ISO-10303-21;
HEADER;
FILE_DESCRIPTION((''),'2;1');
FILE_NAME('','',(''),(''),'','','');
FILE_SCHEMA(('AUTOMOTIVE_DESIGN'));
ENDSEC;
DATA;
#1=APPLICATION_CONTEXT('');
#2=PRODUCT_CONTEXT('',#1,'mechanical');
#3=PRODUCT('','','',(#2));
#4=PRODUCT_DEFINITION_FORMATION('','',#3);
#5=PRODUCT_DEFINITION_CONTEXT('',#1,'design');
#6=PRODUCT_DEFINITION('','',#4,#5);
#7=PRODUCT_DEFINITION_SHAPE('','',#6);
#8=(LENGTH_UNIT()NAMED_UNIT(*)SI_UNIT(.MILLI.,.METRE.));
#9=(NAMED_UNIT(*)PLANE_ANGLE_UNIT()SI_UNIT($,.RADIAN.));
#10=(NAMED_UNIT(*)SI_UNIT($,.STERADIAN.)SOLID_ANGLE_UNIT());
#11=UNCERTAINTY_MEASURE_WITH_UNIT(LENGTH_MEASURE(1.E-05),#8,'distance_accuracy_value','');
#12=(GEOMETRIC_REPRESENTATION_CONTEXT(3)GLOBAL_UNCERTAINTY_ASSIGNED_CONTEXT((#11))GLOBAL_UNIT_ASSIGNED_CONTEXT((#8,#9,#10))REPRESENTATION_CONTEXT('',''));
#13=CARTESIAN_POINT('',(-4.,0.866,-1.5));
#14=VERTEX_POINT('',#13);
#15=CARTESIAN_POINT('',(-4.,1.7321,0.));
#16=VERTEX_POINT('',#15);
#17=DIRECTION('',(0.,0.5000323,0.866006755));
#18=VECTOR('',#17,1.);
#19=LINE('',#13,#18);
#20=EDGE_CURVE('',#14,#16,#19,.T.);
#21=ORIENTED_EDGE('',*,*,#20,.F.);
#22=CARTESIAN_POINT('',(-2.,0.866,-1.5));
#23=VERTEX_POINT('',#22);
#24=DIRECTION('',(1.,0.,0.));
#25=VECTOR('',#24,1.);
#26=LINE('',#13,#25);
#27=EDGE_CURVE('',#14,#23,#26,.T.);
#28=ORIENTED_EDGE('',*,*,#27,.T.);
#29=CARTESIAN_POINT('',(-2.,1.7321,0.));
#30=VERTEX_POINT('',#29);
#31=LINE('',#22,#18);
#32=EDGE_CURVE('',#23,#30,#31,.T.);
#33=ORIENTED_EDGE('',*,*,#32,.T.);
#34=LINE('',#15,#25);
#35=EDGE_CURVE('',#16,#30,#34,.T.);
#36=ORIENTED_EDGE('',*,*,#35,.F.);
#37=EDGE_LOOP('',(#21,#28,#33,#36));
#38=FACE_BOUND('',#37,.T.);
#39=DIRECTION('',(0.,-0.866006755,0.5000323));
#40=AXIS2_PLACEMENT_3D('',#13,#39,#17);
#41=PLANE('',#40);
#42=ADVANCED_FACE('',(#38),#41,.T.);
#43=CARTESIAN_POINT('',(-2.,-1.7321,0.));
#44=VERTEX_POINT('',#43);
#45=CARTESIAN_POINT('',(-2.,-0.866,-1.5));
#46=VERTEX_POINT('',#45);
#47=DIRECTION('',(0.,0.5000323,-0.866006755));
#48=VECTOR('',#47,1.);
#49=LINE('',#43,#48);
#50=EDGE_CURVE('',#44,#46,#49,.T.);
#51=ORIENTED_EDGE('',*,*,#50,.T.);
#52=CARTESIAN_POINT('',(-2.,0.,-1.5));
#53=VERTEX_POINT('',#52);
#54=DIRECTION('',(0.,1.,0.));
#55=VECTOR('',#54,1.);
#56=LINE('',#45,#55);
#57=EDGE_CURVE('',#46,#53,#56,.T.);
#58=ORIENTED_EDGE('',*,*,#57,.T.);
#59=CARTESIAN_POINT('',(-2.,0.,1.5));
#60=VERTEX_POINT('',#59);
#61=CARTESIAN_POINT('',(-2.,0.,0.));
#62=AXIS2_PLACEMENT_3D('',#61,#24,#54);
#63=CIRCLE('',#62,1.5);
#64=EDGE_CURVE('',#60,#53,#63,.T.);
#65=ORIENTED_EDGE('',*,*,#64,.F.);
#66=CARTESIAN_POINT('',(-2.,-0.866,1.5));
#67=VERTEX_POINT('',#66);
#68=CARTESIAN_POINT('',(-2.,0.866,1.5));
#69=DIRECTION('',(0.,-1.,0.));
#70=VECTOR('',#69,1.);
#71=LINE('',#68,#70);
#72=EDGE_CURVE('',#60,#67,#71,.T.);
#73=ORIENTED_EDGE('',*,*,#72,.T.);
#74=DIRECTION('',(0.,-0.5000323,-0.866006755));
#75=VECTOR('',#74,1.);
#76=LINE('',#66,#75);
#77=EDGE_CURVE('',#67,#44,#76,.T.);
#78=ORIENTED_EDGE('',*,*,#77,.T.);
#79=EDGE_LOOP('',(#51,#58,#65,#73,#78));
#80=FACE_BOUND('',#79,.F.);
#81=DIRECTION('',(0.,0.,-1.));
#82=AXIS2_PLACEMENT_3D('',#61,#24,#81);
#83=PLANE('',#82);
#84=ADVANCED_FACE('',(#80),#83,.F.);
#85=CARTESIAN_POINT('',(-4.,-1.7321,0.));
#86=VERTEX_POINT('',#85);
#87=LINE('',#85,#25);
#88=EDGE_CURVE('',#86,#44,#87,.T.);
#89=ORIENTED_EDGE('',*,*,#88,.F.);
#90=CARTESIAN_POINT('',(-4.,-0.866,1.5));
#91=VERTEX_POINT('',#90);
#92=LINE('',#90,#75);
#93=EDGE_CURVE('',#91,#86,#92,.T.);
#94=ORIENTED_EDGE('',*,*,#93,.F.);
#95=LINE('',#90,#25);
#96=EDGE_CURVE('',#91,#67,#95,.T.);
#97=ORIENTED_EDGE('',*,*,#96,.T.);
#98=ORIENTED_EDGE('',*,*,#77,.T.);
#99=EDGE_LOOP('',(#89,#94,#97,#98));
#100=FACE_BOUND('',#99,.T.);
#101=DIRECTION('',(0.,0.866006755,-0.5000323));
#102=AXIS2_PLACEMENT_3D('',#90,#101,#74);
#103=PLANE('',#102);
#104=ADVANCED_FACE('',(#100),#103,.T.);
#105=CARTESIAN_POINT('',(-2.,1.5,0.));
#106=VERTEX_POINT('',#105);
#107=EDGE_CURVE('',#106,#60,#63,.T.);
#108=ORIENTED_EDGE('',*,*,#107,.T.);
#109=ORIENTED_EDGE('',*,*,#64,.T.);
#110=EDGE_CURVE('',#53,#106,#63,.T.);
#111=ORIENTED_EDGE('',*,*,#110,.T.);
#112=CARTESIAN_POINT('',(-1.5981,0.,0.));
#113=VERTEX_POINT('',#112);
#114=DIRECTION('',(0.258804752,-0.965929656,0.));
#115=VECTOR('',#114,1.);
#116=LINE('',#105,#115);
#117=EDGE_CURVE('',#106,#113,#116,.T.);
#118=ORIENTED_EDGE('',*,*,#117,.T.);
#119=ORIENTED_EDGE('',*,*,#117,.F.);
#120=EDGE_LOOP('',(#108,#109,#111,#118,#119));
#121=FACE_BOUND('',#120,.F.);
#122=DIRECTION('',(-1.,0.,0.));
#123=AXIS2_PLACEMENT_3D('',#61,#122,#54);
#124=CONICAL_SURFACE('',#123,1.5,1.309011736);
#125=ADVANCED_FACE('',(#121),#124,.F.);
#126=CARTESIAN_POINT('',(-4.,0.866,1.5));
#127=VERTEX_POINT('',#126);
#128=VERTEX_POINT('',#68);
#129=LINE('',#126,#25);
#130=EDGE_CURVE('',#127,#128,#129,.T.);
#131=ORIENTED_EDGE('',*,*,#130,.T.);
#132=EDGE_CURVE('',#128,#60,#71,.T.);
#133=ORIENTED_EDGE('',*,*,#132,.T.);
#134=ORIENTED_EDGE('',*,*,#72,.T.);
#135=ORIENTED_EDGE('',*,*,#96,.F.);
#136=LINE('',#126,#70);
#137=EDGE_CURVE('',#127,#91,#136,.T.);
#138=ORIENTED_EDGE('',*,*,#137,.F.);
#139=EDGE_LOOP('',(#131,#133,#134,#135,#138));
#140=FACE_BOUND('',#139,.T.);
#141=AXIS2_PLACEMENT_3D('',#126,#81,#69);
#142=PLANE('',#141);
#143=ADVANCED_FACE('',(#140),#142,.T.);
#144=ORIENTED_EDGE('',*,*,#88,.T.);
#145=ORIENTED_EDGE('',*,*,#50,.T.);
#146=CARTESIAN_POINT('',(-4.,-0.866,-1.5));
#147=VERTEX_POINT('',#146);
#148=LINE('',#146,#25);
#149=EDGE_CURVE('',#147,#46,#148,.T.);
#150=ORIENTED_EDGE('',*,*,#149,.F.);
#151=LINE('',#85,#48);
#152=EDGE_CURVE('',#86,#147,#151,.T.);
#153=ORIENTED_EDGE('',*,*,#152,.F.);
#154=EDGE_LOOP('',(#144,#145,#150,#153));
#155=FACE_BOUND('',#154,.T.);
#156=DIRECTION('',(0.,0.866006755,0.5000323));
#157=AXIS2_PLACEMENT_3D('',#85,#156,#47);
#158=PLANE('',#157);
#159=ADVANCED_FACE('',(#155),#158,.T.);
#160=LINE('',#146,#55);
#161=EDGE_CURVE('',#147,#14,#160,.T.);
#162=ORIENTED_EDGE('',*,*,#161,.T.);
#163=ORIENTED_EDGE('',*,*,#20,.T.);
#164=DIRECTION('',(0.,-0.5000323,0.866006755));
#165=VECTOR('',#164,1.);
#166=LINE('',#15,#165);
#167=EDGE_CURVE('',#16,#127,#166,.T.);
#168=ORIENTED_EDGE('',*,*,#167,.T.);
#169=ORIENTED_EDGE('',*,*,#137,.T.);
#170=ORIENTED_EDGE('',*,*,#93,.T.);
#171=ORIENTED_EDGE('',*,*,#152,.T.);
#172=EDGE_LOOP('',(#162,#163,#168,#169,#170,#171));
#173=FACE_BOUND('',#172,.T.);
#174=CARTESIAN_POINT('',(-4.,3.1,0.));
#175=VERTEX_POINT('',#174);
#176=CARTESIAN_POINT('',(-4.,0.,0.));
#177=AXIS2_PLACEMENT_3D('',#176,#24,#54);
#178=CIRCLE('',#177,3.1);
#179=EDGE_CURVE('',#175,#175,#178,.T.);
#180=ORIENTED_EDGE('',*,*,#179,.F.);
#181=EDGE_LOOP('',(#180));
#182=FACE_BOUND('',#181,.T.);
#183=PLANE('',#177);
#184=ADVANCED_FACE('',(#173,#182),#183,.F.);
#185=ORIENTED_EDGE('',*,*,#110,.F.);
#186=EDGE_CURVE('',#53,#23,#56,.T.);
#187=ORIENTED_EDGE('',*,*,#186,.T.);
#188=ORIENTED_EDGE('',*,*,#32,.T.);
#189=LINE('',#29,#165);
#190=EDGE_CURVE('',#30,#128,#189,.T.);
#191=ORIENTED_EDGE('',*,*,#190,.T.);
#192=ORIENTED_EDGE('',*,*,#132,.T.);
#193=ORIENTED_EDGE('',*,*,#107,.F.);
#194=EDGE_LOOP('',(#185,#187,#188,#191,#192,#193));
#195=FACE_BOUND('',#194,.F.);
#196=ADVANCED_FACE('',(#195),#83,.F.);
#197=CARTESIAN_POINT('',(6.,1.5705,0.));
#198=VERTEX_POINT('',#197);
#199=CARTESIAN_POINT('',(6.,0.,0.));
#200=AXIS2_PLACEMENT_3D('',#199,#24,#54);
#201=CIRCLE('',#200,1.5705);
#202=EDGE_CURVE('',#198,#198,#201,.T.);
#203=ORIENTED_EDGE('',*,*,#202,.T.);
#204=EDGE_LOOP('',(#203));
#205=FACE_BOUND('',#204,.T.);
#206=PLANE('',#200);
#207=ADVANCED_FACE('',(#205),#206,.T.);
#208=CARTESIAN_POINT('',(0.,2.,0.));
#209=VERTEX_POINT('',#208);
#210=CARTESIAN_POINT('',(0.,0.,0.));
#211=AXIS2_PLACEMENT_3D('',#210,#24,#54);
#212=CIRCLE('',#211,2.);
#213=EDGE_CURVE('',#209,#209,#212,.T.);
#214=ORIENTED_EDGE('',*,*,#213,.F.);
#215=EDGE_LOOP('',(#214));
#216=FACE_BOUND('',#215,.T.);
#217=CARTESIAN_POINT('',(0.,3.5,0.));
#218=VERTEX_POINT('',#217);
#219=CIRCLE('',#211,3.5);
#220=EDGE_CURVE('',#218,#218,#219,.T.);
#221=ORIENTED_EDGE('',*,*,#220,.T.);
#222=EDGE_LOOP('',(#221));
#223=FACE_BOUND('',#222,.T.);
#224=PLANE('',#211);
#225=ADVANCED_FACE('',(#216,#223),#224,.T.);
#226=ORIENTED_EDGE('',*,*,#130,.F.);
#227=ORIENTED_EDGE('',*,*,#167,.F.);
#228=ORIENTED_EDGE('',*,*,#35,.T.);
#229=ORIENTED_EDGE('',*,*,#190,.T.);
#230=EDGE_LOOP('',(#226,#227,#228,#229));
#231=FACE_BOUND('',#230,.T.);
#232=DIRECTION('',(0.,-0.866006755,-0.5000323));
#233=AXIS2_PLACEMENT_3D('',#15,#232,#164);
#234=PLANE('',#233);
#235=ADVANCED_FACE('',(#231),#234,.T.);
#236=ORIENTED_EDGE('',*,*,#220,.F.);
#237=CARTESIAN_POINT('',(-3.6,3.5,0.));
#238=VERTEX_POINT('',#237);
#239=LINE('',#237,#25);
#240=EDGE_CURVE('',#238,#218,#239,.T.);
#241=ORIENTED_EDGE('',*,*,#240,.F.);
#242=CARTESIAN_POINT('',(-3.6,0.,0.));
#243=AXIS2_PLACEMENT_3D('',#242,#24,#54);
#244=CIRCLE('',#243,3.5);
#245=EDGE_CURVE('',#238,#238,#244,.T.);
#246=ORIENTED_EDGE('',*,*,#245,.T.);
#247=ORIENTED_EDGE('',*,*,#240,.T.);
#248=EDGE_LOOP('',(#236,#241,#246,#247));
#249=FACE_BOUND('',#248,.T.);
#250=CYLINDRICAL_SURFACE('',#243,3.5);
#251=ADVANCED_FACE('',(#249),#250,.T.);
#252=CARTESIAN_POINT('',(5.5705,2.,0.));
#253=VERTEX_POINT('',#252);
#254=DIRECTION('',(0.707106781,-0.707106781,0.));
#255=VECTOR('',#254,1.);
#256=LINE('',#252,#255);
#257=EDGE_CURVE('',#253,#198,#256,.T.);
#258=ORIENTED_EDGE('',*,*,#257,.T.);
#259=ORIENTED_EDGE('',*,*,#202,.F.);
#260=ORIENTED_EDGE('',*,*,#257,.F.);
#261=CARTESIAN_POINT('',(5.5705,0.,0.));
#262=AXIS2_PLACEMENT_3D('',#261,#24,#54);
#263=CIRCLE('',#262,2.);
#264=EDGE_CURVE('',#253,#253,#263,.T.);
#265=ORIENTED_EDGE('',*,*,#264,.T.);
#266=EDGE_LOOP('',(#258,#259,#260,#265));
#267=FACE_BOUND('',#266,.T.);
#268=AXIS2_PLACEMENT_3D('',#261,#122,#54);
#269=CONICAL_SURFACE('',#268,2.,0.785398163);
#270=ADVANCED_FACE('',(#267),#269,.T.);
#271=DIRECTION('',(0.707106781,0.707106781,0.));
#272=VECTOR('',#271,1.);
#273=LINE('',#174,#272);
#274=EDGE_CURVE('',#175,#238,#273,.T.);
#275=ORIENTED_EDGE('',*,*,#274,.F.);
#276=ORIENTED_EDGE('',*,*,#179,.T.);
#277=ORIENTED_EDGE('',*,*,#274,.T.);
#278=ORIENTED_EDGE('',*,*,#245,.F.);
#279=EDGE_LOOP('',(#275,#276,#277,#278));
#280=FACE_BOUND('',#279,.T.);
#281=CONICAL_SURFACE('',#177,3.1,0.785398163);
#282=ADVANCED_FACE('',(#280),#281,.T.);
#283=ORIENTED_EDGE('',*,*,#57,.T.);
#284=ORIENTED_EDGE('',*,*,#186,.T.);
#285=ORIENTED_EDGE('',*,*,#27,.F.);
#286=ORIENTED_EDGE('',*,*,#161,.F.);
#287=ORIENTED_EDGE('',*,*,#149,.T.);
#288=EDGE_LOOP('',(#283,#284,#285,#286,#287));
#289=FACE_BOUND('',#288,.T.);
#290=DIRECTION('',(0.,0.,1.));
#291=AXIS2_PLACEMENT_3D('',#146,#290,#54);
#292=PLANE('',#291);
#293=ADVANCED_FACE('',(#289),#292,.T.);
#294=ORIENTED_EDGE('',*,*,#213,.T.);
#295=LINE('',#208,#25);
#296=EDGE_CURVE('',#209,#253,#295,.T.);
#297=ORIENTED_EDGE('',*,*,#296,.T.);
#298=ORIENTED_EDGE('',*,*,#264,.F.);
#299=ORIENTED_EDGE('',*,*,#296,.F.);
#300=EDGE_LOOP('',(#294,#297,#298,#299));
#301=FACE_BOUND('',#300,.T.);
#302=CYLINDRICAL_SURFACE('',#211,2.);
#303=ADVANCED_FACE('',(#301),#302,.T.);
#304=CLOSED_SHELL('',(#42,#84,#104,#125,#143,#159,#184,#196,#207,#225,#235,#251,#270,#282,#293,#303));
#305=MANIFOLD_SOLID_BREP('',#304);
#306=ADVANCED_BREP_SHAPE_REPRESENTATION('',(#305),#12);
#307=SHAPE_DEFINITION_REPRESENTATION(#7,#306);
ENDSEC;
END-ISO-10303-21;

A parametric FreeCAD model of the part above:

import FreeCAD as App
import Part
import Sketcher

V = App.Vector
Q = App.Units.Quantity


def add_polygon(sketch, points):
    """Adds a closed chain of lines whose ends are joined by coincident constraints."""
    first, n = sketch.GeometryCount, len(points)
    for a, b in zip(points, points[1:] + points[:1]):
        sketch.addGeometry(Part.LineSegment(App.Vector(*a, 0), App.Vector(*b, 0)), False)
    for i in range(n):
        sketch.addConstraint(Sketcher.Constraint("Coincident", first + i, 2, first + (i + 1) % n, 1))

doc = App.newDocument("Part")
body = doc.addObject("PartDesign::Body", "Body")

# Sketch on XY plane
sketch1 = body.newObject("Sketcher::SketchObject", "Sketch")
sketch1.AttachmentSupport = (doc.getObject("XY_Plane"), [""])
sketch1.MapMode = "FlatFace"
add_polygon(sketch1, [(-4, 0), (6, 0), (6, 1.6), (5.6, 2), (0, 2), (0, 3.5), (-3.6, 3.5), (-4, 3.1)])  # lines 0-7
sketch1.addConstraint([
    Sketcher.Constraint("Horizontal", 0),
    Sketcher.Constraint("Vertical", 1),
    Sketcher.Constraint("Horizontal", 3),
    Sketcher.Constraint("Vertical", 4),
    Sketcher.Constraint("Horizontal", 5),
    Sketcher.Constraint("Vertical", 7),
    Sketcher.Constraint("PointOnObject", 0, 2, -1),
    Sketcher.Constraint("PointOnObject", 3, 2, -2),
    Sketcher.Constraint("Perpendicular", 2, 6),
    Sketcher.Constraint("DistanceX", 0, 1, 0, 2, 10.0),
    Sketcher.Constraint("Angle", 2, Q("135 deg")),
    Sketcher.Constraint("DistanceX", 5, 2, 5, 1, 3.6),
    Sketcher.Constraint("DistanceY", 4, 1, 4, 2, 1.5),
    Sketcher.Constraint("DistanceY", 7, 2, 7, 1, 3.1),
    Sketcher.Constraint("DistanceX", -1, 1, 0, 2, 6.0),
    Sketcher.Constraint("DistanceX", 3, 2, 3, 1, 5.5705),
])
revolution = body.newObject("PartDesign::Revolution", "Revolution")
revolution.Profile = sketch1
revolution.ReferenceAxis = (sketch1, ["H_Axis"])
revolution.Angle = 360

# Sketch on XY plane
sketch2 = body.newObject("Sketcher::SketchObject", "Sketch001")
sketch2.AttachmentSupport = (doc.getObject("XY_Plane"), [""])
sketch2.MapMode = "FlatFace"
add_polygon(sketch2, [(-4, 0), (-1.6, 0), (-2, 1.5), (-4, 1.5)])  # lines 0-3
sketch2.addConstraint([
    Sketcher.Constraint("Horizontal", 0),
    Sketcher.Constraint("Horizontal", 2),
    Sketcher.Constraint("Vertical", 3),
    Sketcher.Constraint("PointOnObject", 0, 2, -1),
    Sketcher.Constraint("DistanceX", 2, 2, 2, 1, 2.0),
    Sketcher.Constraint("Angle", 1, Q("104.9992 deg")),
    Sketcher.Constraint("DistanceY", 3, 2, 3, 1, 1.5),
    Sketcher.Constraint("DistanceX", 1, 2, -1, 1, 2.0),
])
groove = body.newObject("PartDesign::Groove", "Groove")
groove.Profile = sketch2
groove.ReferenceAxis = (sketch2, ["H_Axis"])
groove.Angle = 360

# Sketch on YZ plane
sketch3 = body.newObject("Sketcher::SketchObject", "Sketch002")
sketch3.AttachmentSupport = (doc.getObject("YZ_Plane"), [""])
sketch3.MapMode = "FlatFace"
sketch3.AttachmentOffset = App.Placement(V(0, 0, -4), App.Rotation())
add_polygon(sketch3, [(1.7, 0), (0.9, 1.5), (-0.9, 1.5), (-1.7, 0), (-0.9, -1.5), (0.9, -1.5)])  # lines 0-5
sketch3.addConstraint([
    Sketcher.Constraint("Horizontal", 1),
    Sketcher.Constraint("Horizontal", 4),
    Sketcher.Constraint("Symmetric", 0, 2, 3, 2, -1, 1),
    Sketcher.Constraint("Symmetric", 2, 2, 5, 2, -1, 1),
    Sketcher.Constraint("PointOnObject", 2, 2, -1),
    Sketcher.Constraint("Parallel", 2, 5),
    Sketcher.Constraint("Vertical", 1, 2, 3, 2),
    Sketcher.Constraint("DistanceY", 3, 2, 1, 2, 3.0),
    Sketcher.Constraint("DistanceX", 1, 2, 1, 1, 1.732),
    Sketcher.Constraint("Distance", 0, 1.732),
])
pocket1 = body.newObject("PartDesign::Pocket", "Pocket")
pocket1.Profile = sketch3
pocket1.Length = 2
pocket1.Reversed = True

doc.recompute()
